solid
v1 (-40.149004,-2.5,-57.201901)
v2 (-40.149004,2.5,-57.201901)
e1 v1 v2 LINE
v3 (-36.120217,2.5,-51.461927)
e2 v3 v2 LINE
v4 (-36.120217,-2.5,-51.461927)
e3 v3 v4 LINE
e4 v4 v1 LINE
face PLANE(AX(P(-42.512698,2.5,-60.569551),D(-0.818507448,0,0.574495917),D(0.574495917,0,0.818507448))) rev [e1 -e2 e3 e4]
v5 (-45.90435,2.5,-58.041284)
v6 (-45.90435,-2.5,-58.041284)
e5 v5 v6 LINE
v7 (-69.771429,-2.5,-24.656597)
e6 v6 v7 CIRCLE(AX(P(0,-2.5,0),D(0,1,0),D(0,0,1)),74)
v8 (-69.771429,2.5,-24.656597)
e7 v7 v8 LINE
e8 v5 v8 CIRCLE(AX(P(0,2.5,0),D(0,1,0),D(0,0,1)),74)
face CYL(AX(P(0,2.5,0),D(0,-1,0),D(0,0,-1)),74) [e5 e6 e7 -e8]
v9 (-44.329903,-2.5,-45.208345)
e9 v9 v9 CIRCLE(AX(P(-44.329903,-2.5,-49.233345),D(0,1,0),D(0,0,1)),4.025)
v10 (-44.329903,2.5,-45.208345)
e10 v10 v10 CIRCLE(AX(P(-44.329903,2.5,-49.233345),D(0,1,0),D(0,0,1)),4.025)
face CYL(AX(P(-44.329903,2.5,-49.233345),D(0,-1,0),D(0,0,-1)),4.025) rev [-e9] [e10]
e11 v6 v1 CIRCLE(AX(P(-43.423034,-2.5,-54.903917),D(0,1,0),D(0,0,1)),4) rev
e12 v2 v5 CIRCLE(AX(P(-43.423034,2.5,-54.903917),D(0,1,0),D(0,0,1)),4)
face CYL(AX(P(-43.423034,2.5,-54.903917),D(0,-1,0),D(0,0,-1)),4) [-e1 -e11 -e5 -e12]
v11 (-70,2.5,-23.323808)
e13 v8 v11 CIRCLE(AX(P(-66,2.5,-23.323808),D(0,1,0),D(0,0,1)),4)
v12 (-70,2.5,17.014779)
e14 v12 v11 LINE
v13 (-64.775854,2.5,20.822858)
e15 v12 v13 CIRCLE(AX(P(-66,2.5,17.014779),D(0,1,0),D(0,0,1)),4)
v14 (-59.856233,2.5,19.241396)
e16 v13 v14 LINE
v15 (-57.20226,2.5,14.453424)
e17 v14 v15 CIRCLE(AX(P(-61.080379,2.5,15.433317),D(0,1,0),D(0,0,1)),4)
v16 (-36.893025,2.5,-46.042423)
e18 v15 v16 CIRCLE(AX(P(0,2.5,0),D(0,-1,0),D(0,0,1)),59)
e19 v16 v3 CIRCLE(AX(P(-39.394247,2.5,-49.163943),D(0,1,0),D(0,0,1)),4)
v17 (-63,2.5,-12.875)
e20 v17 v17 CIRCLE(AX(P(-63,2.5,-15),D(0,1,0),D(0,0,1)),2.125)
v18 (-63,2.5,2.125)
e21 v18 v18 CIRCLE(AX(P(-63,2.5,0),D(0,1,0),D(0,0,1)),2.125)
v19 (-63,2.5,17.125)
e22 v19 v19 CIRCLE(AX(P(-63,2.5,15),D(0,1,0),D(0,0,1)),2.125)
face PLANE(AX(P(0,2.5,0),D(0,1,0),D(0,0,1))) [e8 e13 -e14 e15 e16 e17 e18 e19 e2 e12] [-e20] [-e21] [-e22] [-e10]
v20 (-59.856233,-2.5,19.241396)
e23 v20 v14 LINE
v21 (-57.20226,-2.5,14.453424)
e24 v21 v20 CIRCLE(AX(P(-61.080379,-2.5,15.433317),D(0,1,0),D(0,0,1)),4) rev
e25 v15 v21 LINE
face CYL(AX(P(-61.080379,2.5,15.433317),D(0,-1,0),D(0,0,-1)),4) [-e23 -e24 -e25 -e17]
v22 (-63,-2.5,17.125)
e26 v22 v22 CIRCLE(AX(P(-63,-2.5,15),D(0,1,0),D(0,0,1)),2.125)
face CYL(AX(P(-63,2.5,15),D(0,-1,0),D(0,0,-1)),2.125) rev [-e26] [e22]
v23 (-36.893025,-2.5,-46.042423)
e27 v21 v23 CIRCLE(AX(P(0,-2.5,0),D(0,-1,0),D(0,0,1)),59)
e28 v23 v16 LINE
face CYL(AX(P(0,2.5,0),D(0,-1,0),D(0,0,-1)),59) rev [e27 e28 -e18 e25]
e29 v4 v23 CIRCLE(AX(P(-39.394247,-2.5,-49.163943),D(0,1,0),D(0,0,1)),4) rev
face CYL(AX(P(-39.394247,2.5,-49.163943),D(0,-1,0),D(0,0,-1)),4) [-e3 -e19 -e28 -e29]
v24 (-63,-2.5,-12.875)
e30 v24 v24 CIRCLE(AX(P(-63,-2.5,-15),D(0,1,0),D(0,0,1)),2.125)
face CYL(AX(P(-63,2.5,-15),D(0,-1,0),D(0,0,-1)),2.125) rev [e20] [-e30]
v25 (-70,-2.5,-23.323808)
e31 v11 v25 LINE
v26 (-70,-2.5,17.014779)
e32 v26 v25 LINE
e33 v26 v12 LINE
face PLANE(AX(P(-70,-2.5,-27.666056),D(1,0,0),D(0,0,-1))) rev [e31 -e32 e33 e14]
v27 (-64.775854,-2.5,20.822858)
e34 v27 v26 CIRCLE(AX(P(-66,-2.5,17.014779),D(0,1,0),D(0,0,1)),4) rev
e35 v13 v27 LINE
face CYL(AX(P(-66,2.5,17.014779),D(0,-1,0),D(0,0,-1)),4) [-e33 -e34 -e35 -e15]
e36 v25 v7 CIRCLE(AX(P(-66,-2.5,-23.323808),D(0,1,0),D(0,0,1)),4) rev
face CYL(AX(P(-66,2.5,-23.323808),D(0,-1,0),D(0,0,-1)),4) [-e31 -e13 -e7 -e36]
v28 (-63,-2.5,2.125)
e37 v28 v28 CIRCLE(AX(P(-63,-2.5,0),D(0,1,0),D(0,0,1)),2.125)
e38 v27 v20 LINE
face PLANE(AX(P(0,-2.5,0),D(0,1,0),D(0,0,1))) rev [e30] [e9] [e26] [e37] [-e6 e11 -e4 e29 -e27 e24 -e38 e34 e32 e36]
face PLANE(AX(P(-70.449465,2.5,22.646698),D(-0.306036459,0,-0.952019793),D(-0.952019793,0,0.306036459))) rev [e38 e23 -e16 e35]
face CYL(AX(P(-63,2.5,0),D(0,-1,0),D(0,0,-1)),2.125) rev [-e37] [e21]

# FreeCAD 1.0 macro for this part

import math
import FreeCAD as App
import Part
import Sketcher
from FreeCAD import Vector


def edges_at(feature, points):
    """Names of the edges that pass closest to the given points."""
    edges = feature.Shape.Edges
    near = lambda p: min(range(len(edges)), key=lambda i: edges[i].distToShape(Part.Vertex(*p))[0])
    return sorted({f"Edge{near(p) + 1}" for p in points})


def add_polygon(sketch, points):
    """Adds a closed chain of lines whose ends are joined by coincident constraints."""
    first, n = sketch.GeometryCount, len(points)
    for a, b in zip(points, points[1:] + points[:1]):
        sketch.addGeometry(Part.LineSegment(App.Vector(*a, 0), App.Vector(*b, 0)), False)
    for i in range(n):
        sketch.addConstraint(Sketcher.Constraint("Coincident", first + i, 2, first + (i + 1) % n, 1))

doc = App.newDocument("Part")
params = doc.addObject("Spreadsheet::Sheet", "Params")
for row, (alias, value) in enumerate([
    ("sketch1_radius", "74 mm"),
    ("sketch1_radius2", "59 mm"),
    ("sketch1_diameter", "4.25 mm"),
    ("sketch1_diameter2", "8.05 mm"),
    ("pad1_length", "5 mm"),
    ("fillet_radius", "4 mm"),
], start=1):
    params.set(f"A{row}", alias)
    params.set(f"B{row}", "=" + value)
    params.setAlias(f"B{row}", alias)

body = doc.addObject("PartDesign::Body", "Body")

sketch1 = doc.addObject("Sketcher::SketchObject", "Sketch")
body.addObject(sketch1)
sketch1.AttachmentSupport = (doc.XZ_Plane, [""])
sketch1.MapMode = "FlatFace"
sketch1.addGeometry(Part.LineSegment(Vector(-33.895259, -48.291939, 0), Vector(-42.512698, -60.569551, 0)), False)
sketch1.addGeometry(Part.ArcOfCircle(Part.Circle(Vector(0, 0, 0), Vector(0, 0, 1), 74), math.radians(162.179469), math.radians(234.935661)), False)
sketch1.addGeometry(Part.LineSegment(Vector(-70.449465, 22.646698, 0), Vector(-56.169168, 18.056151, 0)), False)
sketch1.addGeometry(Part.ArcOfCircle(Part.Circle(Vector(0, 0, 0), Vector(0, 0, 1), 59), math.radians(162.179469), math.radians(234.935661)), False)
sketch1.addGeometry(Part.Circle(Vector(-63, 15, 0), Vector(0, 0, 1), 2.125), False)
sketch1.addGeometry(Part.Circle(Vector(-63, 0, 0), Vector(0, 0, 1), 2.125), False)
sketch1.addGeometry(Part.Circle(Vector(-63, -15, 0), Vector(0, 0, 1), 2.125), False)
sketch1.addGeometry(Part.Circle(Vector(-44.329903, -49.233345, 0), Vector(0, 0, 1), 4.025), False)
sketch1.addConstraint(Sketcher.Constraint("Coincident", 0, 2, 1, 2))
sketch1.addConstraint(Sketcher.Constraint("Coincident", 1, 1, 2, 1))
sketch1.addConstraint(Sketcher.Constraint("Coincident", 2, 2, 3, 1))
sketch1.addConstraint(Sketcher.Constraint("Coincident", 3, 2, 0, 1))
sketch1.addConstraint(Sketcher.Constraint("Coincident", 1, 3, -1, 1))
sketch1.addConstraint(Sketcher.Constraint("Coincident", 3, 3, -1, 1))
sketch1.addConstraint(Sketcher.Constraint("Equal", 4, 5))
sketch1.addConstraint(Sketcher.Constraint("Equal", 5, 6))
sketch1.addConstraint(Sketcher.Constraint("Symmetric", 4, 3, 6, 3, -1))
sketch1.addConstraint(Sketcher.Constraint("PointOnObject", 5, 3, -1))
sketch1.addConstraint(Sketcher.Constraint("Vertical", 4, 3, 5, 3))
sketch1.addConstraint(Sketcher.Constraint("Radius", 1, 74.0))
sketch1.addConstraint(Sketcher.Constraint("Radius", 3, 59.0))
sketch1.addConstraint(Sketcher.Constraint("Diameter", 4, 4.25))
sketch1.addConstraint(Sketcher.Constraint("Diameter", 7, 8.05))
sketch1.addConstraint(Sketcher.Constraint("DistanceX", 4, 3, -1, 1, 63.0))
sketch1.addConstraint(Sketcher.Constraint("DistanceY", -1, 1, 4, 3, 15.0))
sketch1.addConstraint(Sketcher.Constraint("DistanceY", 0, 2, -1, 1, 60.569551))
sketch1.addConstraint(Sketcher.Constraint("DistanceY", -1, 1, 2, 2, 18.056151))
sketch1.addConstraint(Sketcher.Constraint("DistanceX", 3, 2, -1, 1, 33.895259))
sketch1.addConstraint(Sketcher.Constraint("DistanceX", 7, 3, -1, 1, 44.329903))
sketch1.addConstraint(Sketcher.Constraint("DistanceY", 7, 3, -1, 1, 49.233345))
sketch1.addConstraint(Sketcher.Constraint("DistanceX", 1, 1, -1, 1, 70.449465))
sketch1.setExpression("Constraints[11]", "Params.sketch1_radius")
sketch1.setExpression("Constraints[12]", "Params.sketch1_radius2")
sketch1.setExpression("Constraints[13]", "Params.sketch1_diameter")
sketch1.setExpression("Constraints[14]", "Params.sketch1_diameter2")
pad1 = doc.addObject("PartDesign::Pad", "Pad")
body.addObject(pad1)
pad1.Profile = sketch1
pad1.setExpression("Length", "Params.pad1_length")
pad1.Midplane = True

sketch2 = doc.addObject("Sketcher::SketchObject", "Sketch001")
body.addObject(sketch2)
sketch2.AttachmentSupport = (doc.XZ_Plane, [""])
sketch2.MapMode = "FlatFace"
sketch2.AttachmentOffset = App.Placement(Vector(0, 0, -2.5), App.Rotation())
add_polygon(sketch2, [(-98.904596, -27.666056), (-98.904596, 27.666056), (-70, 27.666056), (-70, -27.666056)])
sketch2.addConstraint(Sketcher.Constraint("Vertical", 0))
sketch2.addConstraint(Sketcher.Constraint("Horizontal", 1))
sketch2.addConstraint(Sketcher.Constraint("Vertical", 2))
sketch2.addConstraint(Sketcher.Constraint("Horizontal", 3))
sketch2.addConstraint(Sketcher.Constraint("DistanceX", 1, 2, -1, 1, 70.0))
sketch2.addConstraint(Sketcher.Constraint("DistanceX", 1, 1, 1, 2, 28.904596))
sketch2.addConstraint(Sketcher.Constraint("DistanceY", 0, 1, 0, 2, 55.332112))
sketch2.addConstraint(Sketcher.Constraint("DistanceY", -1, 1, 0, 2, 27.666056))
pocket1 = doc.addObject("PartDesign::Pocket", "Pocket")
body.addObject(pocket1)
pocket1.Profile = sketch2
pocket1.Type = "ThroughAll"
pocket1.Midplane = True
doc.recompute()

fillet = doc.addObject("PartDesign::Fillet", "Fillet")
body.addObject(fillet)
fillet.Base = (pocket1, edges_at(pocket1, [
    (-70, 0, 22.502),
    (-70, 0, -24),
    (-42.513, 0, -60.57),
    (-33.895, 0, -48.292),
    (-56.169, 0, 18.056),
]))
fillet.setExpression("Radius", "Params.fillet_radius")

doc.recompute()
